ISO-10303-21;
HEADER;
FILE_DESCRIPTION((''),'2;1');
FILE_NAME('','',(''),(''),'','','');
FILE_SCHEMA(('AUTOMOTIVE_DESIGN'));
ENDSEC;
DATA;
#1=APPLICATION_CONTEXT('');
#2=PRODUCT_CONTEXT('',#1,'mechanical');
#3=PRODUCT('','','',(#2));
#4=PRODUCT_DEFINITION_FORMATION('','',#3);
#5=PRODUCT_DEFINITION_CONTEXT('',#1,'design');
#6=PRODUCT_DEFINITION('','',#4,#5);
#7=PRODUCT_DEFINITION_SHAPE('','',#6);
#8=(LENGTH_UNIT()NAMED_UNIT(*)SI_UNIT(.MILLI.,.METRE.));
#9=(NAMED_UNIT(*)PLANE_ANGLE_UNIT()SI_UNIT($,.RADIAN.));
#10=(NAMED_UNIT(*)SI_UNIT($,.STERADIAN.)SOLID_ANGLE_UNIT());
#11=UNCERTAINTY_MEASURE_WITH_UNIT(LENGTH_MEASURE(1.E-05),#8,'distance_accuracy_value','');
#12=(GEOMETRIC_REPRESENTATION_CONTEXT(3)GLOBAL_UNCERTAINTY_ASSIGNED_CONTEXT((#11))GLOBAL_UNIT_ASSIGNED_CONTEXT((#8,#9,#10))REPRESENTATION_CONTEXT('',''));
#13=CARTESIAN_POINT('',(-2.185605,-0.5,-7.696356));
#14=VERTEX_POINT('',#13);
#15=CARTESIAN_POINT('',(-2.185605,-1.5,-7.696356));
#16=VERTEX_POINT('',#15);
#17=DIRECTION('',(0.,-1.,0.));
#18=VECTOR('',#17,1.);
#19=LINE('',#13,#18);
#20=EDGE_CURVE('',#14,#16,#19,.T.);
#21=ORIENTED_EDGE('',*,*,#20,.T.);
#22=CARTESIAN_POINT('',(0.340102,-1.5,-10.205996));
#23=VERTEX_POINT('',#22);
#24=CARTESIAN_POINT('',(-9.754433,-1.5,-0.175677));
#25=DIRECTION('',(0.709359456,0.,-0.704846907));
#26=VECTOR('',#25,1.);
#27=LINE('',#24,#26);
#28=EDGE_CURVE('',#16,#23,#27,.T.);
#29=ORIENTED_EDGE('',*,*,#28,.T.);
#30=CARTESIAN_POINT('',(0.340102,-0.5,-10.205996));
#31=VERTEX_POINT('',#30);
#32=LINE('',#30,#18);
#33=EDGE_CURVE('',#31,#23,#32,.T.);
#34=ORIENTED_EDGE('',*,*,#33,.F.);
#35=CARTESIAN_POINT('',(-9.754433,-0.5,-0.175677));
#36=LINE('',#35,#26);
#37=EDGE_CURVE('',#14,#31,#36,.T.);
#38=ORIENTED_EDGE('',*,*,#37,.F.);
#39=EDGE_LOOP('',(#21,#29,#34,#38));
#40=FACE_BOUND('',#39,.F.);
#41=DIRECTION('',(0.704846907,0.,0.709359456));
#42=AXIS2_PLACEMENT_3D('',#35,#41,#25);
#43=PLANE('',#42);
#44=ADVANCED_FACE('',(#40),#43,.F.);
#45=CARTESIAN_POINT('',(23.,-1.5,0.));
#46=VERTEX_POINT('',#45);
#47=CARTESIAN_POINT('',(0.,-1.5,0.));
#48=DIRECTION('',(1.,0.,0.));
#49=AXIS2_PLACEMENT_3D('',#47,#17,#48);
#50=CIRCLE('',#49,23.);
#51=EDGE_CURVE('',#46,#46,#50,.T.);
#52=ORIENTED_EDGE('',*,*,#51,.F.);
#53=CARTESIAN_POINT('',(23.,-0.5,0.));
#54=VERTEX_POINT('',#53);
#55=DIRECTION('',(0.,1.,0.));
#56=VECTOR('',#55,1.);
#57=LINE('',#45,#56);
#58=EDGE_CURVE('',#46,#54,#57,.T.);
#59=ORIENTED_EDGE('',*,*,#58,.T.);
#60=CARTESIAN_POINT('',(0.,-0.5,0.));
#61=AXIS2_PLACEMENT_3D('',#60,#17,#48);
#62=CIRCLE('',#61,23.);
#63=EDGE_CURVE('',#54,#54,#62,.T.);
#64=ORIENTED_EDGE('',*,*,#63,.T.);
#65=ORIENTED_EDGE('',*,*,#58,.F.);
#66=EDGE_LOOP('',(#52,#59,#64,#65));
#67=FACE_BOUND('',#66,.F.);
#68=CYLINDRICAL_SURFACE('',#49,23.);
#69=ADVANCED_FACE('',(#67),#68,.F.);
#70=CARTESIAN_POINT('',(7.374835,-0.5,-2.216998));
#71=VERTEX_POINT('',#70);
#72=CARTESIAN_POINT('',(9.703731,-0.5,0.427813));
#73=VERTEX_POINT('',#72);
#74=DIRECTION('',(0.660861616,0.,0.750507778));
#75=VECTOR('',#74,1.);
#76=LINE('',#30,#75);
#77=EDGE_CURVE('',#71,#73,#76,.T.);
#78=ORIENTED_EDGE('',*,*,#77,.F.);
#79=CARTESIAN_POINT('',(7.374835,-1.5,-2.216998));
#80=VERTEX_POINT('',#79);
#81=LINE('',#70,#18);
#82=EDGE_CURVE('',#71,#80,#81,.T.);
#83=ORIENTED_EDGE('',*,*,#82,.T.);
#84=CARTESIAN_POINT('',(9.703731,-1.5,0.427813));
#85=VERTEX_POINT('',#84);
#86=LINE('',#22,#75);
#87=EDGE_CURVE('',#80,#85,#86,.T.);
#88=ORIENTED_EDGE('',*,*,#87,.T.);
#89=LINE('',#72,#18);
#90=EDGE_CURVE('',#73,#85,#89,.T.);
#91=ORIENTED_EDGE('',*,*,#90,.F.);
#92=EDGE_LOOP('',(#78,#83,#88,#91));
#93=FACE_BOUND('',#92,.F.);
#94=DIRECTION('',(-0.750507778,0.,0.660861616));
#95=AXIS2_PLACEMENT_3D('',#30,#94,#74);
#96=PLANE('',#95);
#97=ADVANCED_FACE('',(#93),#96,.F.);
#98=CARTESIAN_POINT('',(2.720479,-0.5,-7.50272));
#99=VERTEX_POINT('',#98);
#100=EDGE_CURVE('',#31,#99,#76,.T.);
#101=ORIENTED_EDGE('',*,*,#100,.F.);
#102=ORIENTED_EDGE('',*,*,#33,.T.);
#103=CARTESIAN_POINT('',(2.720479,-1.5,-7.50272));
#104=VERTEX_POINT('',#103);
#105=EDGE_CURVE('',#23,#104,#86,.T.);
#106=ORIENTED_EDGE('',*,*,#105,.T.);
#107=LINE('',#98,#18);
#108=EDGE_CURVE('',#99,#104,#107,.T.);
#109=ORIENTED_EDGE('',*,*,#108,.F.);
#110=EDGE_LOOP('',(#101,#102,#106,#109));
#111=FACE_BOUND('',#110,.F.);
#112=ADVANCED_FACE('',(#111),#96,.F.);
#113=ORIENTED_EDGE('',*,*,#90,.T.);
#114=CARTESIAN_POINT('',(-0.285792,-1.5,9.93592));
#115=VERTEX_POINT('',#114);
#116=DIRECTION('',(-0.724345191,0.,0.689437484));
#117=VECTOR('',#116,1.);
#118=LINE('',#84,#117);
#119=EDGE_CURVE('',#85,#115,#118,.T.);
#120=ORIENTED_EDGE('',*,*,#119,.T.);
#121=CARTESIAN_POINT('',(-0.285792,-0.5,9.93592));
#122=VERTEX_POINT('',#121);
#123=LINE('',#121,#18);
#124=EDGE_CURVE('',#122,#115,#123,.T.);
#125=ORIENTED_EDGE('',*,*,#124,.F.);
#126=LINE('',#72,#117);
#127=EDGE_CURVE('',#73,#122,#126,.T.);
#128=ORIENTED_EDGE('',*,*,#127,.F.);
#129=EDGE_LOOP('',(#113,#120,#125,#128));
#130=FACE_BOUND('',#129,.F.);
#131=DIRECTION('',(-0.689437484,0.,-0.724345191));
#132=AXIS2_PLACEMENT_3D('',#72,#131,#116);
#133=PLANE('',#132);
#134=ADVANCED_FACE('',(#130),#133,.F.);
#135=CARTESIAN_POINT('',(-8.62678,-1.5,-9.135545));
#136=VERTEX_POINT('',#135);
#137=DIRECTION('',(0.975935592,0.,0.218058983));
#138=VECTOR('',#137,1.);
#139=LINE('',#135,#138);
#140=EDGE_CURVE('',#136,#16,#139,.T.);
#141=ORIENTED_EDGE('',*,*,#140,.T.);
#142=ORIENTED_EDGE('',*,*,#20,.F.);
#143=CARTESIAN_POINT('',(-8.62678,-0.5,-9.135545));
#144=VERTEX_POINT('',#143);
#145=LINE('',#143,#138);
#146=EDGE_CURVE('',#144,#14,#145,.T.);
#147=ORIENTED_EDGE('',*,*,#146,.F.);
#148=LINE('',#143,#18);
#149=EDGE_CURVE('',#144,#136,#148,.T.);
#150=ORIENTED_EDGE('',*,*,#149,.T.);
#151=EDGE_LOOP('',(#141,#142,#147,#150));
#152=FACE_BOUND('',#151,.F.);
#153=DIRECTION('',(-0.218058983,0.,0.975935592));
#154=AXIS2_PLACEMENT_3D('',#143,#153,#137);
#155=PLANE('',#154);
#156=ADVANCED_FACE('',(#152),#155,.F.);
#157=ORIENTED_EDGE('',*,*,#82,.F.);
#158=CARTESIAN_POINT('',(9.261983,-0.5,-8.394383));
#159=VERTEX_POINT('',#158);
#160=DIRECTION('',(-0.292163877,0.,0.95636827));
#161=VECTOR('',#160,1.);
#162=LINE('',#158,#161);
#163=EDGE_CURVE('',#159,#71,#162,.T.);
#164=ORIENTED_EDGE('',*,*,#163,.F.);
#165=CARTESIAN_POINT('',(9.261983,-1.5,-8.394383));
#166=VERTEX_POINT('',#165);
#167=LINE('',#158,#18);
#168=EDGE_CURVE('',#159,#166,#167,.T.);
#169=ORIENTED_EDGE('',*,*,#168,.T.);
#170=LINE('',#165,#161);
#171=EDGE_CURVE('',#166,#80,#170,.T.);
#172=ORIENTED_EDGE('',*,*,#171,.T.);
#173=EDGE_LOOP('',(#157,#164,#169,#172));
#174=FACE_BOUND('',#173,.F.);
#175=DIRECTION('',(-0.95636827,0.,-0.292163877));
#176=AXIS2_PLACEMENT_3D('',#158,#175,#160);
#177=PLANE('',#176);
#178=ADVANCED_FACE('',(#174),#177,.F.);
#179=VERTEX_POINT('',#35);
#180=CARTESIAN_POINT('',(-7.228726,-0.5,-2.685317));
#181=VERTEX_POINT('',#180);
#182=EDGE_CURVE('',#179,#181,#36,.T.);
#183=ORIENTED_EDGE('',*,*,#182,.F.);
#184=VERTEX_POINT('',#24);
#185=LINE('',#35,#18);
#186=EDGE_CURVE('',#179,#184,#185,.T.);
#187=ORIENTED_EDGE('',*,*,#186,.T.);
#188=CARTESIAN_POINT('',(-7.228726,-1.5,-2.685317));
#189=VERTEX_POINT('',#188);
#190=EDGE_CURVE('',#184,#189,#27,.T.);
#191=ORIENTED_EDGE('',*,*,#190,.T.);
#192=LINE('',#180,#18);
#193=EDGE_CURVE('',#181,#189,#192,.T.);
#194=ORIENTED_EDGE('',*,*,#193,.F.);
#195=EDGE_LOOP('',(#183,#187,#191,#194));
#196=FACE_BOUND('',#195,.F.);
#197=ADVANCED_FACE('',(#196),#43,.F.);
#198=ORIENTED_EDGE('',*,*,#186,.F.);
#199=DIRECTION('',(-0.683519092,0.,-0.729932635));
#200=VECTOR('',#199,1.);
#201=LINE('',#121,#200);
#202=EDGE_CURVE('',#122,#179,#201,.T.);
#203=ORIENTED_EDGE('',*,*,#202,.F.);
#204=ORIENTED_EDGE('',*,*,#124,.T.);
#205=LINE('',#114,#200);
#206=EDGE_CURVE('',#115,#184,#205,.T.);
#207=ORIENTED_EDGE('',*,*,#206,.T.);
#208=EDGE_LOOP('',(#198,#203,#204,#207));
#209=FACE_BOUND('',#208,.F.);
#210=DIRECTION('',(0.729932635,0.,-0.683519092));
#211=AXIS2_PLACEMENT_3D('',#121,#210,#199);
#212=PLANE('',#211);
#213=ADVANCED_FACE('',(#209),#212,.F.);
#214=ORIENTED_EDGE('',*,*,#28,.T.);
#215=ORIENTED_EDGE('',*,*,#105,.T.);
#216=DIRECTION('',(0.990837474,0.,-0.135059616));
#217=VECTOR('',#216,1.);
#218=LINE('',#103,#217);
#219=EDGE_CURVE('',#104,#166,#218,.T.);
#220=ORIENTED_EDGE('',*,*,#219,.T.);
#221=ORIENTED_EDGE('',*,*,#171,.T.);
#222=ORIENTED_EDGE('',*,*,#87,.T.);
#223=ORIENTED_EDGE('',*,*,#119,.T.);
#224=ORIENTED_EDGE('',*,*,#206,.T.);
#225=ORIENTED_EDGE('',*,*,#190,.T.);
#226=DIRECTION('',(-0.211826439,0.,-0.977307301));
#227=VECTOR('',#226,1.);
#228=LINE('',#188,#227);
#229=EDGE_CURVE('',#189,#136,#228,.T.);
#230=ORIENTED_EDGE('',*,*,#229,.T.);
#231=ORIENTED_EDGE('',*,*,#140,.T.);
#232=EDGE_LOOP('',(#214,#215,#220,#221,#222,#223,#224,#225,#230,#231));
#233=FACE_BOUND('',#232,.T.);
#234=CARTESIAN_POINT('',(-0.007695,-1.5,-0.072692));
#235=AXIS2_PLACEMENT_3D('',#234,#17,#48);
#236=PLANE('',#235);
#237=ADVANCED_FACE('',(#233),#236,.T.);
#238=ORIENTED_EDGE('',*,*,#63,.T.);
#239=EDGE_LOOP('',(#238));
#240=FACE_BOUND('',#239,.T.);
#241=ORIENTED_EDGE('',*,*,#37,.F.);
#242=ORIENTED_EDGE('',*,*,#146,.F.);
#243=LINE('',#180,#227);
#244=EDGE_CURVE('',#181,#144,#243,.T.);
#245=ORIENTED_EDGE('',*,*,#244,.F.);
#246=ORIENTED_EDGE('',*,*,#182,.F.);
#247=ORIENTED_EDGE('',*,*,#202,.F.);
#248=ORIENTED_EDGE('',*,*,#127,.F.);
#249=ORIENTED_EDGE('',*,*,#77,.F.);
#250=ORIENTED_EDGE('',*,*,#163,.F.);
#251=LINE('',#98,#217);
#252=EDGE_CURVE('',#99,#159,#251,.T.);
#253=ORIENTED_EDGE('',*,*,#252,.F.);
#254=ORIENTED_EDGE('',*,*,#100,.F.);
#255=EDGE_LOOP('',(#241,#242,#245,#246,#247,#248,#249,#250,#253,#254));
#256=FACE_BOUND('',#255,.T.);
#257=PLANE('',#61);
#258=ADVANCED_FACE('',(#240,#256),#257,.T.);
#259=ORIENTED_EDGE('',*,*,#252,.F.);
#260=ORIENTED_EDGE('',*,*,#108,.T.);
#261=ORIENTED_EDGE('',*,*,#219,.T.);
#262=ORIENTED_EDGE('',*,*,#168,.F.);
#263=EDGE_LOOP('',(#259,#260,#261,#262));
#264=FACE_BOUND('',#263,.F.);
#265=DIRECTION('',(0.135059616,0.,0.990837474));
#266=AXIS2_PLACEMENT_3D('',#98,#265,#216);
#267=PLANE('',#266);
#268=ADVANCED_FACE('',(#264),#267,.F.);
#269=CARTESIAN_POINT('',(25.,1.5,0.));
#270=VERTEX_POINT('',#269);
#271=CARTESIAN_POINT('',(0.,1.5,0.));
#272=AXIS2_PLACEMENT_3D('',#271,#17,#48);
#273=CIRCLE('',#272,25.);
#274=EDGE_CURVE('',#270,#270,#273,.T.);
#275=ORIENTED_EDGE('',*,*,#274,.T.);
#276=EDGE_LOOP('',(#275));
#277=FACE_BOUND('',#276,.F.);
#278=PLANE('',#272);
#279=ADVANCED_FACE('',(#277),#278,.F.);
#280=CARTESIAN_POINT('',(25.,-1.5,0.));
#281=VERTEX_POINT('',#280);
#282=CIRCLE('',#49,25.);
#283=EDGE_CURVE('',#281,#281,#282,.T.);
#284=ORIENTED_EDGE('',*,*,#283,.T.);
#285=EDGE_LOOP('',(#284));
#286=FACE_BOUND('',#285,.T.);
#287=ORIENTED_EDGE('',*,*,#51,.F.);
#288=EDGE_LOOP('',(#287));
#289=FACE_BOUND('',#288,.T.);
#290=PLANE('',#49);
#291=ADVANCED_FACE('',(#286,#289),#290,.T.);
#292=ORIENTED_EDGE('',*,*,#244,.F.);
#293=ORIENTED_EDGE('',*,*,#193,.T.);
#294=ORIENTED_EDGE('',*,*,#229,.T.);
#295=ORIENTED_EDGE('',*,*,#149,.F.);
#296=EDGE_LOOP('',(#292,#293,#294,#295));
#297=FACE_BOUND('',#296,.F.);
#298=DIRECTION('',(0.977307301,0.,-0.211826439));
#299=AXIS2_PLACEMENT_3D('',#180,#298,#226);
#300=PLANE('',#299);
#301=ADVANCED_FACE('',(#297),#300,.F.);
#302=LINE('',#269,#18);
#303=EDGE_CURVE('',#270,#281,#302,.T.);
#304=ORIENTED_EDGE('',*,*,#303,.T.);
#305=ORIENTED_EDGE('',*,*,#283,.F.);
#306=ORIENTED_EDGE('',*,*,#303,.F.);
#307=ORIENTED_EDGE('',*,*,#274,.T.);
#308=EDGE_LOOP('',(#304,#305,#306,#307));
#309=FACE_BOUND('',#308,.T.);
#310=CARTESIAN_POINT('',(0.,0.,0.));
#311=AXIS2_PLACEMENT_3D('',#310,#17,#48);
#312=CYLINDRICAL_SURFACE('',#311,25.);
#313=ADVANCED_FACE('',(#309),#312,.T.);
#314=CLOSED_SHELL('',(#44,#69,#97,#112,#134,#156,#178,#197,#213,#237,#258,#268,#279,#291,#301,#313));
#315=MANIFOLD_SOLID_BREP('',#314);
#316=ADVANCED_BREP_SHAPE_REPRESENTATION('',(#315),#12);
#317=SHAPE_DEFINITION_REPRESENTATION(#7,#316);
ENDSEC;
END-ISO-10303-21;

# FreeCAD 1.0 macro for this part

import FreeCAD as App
import Part
import Sketcher
Q = App.Units.Quantity


def add_polygon(sketch, points):
    """Adds a closed chain of lines whose ends are joined by coincident constraints."""
    first, n = sketch.GeometryCount, len(points)
    for a, b in zip(points, points[1:] + points[:1]):
        sketch.addGeometry(Part.LineSegment(App.Vector(*a, 0), App.Vector(*b, 0)), False)
    for i in range(n):
        sketch.addConstraint(Sketcher.Constraint("Coincident", first + i, 2, first + (i + 1) % n, 1))

doc = App.newDocument("Part")
body = doc.addObject("PartDesign::Body", "Body")

# Sketch on XZ plane
sketch1 = body.newObject("Sketcher::SketchObject", "Sketch")
sketch1.AttachmentSupport = (doc.getObject("XZ_Plane"), [""])
sketch1.MapMode = "FlatFace"
sketch1.addGeometry(Part.Circle(App.Vector(0, 0, 0), App.Vector(0, 0, 1), 25), False)
sketch1.addConstraint([
    Sketcher.Constraint("Coincident", 0, 3, -1, 1),
    Sketcher.Constraint("Diameter", 0, Q("50 mm")),
])
pad1 = body.newObject("PartDesign::Pad", "Pad")
pad1.Profile = sketch1
pad1.Length = 3
pad1.Midplane = True

# Sketch on XZ plane
sketch2 = body.newObject("Sketcher::SketchObject", "Sketch001")
sketch2.AttachmentSupport = (doc.getObject("XZ_Plane"), [""])
sketch2.MapMode = "FlatFace"
sketch2.AttachmentOffset = App.Placement(App.Vector(0, 0, 1.5), App.Rotation())
sketch2.addGeometry(Part.Circle(App.Vector(0, 0, 0), App.Vector(0, 0, 1), 23), False)
sketch2.addConstraint([
    Sketcher.Constraint("Coincident", 0, 3, -1, 1),
    Sketcher.Constraint("Diameter", 0, Q("46 mm")),
])
pocket1 = body.newObject("PartDesign::Pocket", "Pocket")
pocket1.Profile = sketch2
pocket1.Length = 1

# Sketch on XZ plane
sketch3 = body.newObject("Sketcher::SketchObject", "Sketch002")
sketch3.AttachmentSupport = (doc.getObject("XZ_Plane"), [""])
sketch3.MapMode = "FlatFace"
sketch3.AttachmentOffset = App.Placement(App.Vector(0, 0, 0.5), App.Rotation())
add_polygon(sketch3, [(10, 0), (0, 10), (-10, 0), (0, -10)])  # lines 0-3
sketch3.addConstraint([
    Sketcher.Constraint("DistanceX", -1, 1, 2, 2, Q("0.340102 mm")),
    Sketcher.Constraint("Distance", 1, Q("13.852781 mm")),
    Sketcher.Constraint("Distance", 3, Q("14.168819 mm")),
    Sketcher.Constraint("DistanceY", -1, 1, 0, 2, Q("9.93592 mm")),
    Sketcher.Constraint("DistanceX", -1, 1, 3, 2, Q("9.703731 mm")),
    Sketcher.Constraint("DistanceX", 1, 2, 0, 2, Q("9.468641 mm")),
    Sketcher.Constraint("DistanceY", 2, 2, 1, 2, Q("10.030319 mm")),
    Sketcher.Constraint("Distance", 0, Q("13.791108 mm")),
])
pad2 = body.newObject("PartDesign::Pad", "Pad001")
pad2.Profile = sketch3
pad2.Length = 1

# Sketch on XZ plane
sketch4 = body.newObject("Sketcher::SketchObject", "Sketch003")
sketch4.AttachmentSupport = (doc.getObject("XZ_Plane"), [""])
sketch4.MapMode = "FlatFace"
sketch4.AttachmentOffset = App.Placement(App.Vector(0, 0, 0.5), App.Rotation())
add_polygon(sketch4, [(7, -2), (3, -8), (9, -8)])  # lines 0-2
add_polygon(sketch4, [(-2, -8), (-7, -3), (-9, -9)])  # lines 3-5
sketch4.addConstraint([
    Sketcher.Constraint("Equal", 4, 5),
    Sketcher.Constraint("Distance", 4, Q("6.6 mm")),
    Sketcher.Constraint("Distance", 3, Q("7.1094 mm")),
    Sketcher.Constraint("Distance", 0, Q("7.042861 mm")),
    Sketcher.Constraint("Distance", 2, Q("6.459211 mm")),
    Sketcher.Constraint("DistanceX", -1, 1, 0, 2, Q("2.720479 mm")),
    Sketcher.Constraint("DistanceY", 0, 2, -1, 1, Q("7.50272 mm")),
    Sketcher.Constraint("DistanceX", 4, 2, -1, 1, Q("8.62678 mm")),
    Sketcher.Constraint("DistanceX", 2, 2, 1, 2, Q("1.887148 mm")),
    Sketcher.Constraint("DistanceY", 0, 2, 2, 2, Q("5.285722 mm")),
    Sketcher.Constraint("DistanceX", 3, 2, 2, 2, Q("14.603561 mm")),
    Sketcher.Constraint("DistanceY", 3, 2, 2, 2, Q("0.468319 mm")),
])
pad3 = body.newObject("PartDesign::Pad", "Pad002")
pad3.Profile = sketch4
pad3.Length = 1

doc.recompute()
